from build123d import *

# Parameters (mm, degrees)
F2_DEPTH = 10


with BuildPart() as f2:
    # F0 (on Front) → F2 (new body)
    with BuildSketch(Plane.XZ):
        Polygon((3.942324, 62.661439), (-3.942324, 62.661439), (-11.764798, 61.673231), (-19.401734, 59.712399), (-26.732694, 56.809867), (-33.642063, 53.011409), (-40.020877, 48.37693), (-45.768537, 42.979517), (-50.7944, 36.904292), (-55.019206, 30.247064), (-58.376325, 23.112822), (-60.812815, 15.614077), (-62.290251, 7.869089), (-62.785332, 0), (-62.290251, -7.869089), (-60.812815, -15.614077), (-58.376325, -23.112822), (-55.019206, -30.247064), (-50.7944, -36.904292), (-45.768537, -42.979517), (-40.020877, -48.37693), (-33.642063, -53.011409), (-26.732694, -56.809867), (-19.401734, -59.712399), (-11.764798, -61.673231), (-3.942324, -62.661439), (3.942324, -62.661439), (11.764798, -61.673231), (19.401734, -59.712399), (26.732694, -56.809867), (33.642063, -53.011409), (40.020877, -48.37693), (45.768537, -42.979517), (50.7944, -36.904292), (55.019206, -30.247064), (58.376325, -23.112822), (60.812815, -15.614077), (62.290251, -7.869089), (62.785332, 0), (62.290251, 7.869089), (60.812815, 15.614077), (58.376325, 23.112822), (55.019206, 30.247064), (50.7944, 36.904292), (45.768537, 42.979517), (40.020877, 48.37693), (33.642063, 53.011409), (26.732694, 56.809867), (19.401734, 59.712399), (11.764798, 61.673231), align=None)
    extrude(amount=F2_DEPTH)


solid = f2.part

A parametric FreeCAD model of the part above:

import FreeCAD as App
import Part
import Sketcher
Q = App.Units.Quantity

doc = App.newDocument("Part")
body = doc.addObject("PartDesign::Body", "Body")

# Sketch on XZ plane
sketch1 = body.newObject("Sketcher::SketchObject", "Sketch")
sketch1.AttachmentSupport = (doc.getObject("XZ_Plane"), [""])
sketch1.MapMode = "FlatFace"
sketch1.addGeometry(Part.LineSegment(App.Vector(4, 63, 0), App.Vector(-4, 63, 0)), False)
sketch1.addGeometry(Part.LineSegment(App.Vector(-4, 63, 0), App.Vector(-12, 62, 0)), False)
sketch1.addGeometry(Part.LineSegment(App.Vector(-12, 62, 0), App.Vector(-19, 60, 0)), False)
sketch1.addGeometry(Part.LineSegment(App.Vector(-19, 60, 0), App.Vector(-27, 57, 0)), False)
sketch1.addGeometry(Part.LineSegment(App.Vector(-27, 57, 0), App.Vector(-34, 53, 0)), False)
sketch1.addGeometry(Part.LineSegment(App.Vector(-34, 53, 0), App.Vector(-40, 48, 0)), False)
sketch1.addGeometry(Part.LineSegment(App.Vector(-40, 48, 0), App.Vector(-46, 43, 0)), False)
sketch1.addGeometry(Part.LineSegment(App.Vector(-46, 43, 0), App.Vector(-51, 37, 0)), False)
sketch1.addGeometry(Part.LineSegment(App.Vector(-51, 37, 0), App.Vector(-55, 30, 0)), False)
sketch1.addGeometry(Part.LineSegment(App.Vector(-55, 30, 0), App.Vector(-58, 23, 0)), False)
sketch1.addGeometry(Part.LineSegment(App.Vector(-58, 23, 0), App.Vector(-61, 16, 0)), False)
sketch1.addGeometry(Part.LineSegment(App.Vector(-61, 16, 0), App.Vector(-62, 8, 0)), False)
sketch1.addGeometry(Part.LineSegment(App.Vector(-62, 8, 0), App.Vector(-63, 0, 0)), False)
sketch1.addGeometry(Part.LineSegment(App.Vector(-63, 0, 0), App.Vector(-62, -8, 0)), False)
sketch1.addGeometry(Part.LineSegment(App.Vector(-62, -8, 0), App.Vector(-61, -16, 0)), False)
sketch1.addGeometry(Part.LineSegment(App.Vector(-61, -16, 0), App.Vector(-58, -23, 0)), False)
sketch1.addGeometry(Part.LineSegment(App.Vector(-58, -23, 0), App.Vector(-55, -30, 0)), False)
sketch1.addGeometry(Part.LineSegment(App.Vector(-55, -30, 0), App.Vector(-51, -37, 0)), False)
sketch1.addGeometry(Part.LineSegment(App.Vector(-51, -37, 0), App.Vector(-46, -43, 0)), False)
sketch1.addGeometry(Part.LineSegment(App.Vector(-46, -43, 0), App.Vector(-40, -48, 0)), False)
sketch1.addGeometry(Part.LineSegment(App.Vector(-40, -48, 0), App.Vector(-34, -53, 0)), False)
sketch1.addGeometry(Part.LineSegment(App.Vector(-34, -53, 0), App.Vector(-27, -57, 0)), False)
sketch1.addGeometry(Part.LineSegment(App.Vector(-27, -57, 0), App.Vector(-19, -60, 0)), False)
sketch1.addGeometry(Part.LineSegment(App.Vector(-19, -60, 0), App.Vector(-12, -62, 0)), False)
sketch1.addGeometry(Part.LineSegment(App.Vector(-12, -62, 0), App.Vector(-4, -63, 0)), False)
sketch1.addGeometry(Part.LineSegment(App.Vector(-4, -63, 0), App.Vector(4, -63, 0)), False)
sketch1.addGeometry(Part.LineSegment(App.Vector(4, -63, 0), App.Vector(12, -62, 0)), False)
sketch1.addGeometry(Part.LineSegment(App.Vector(12, -62, 0), App.Vector(19, -60, 0)), False)
sketch1.addGeometry(Part.LineSegment(App.Vector(19, -60, 0), App.Vector(27, -57, 0)), False)
sketch1.addGeometry(Part.LineSegment(App.Vector(27, -57, 0), App.Vector(34, -53, 0)), False)
sketch1.addGeometry(Part.LineSegment(App.Vector(34, -53, 0), App.Vector(40, -48, 0)), False)
sketch1.addGeometry(Part.LineSegment(App.Vector(40, -48, 0), App.Vector(46, -43, 0)), False)
sketch1.addGeometry(Part.LineSegment(App.Vector(46, -43, 0), App.Vector(51, -37, 0)), False)
sketch1.addGeometry(Part.LineSegment(App.Vector(51, -37, 0), App.Vector(55, -30, 0)), False)
sketch1.addGeometry(Part.LineSegment(App.Vector(55, -30, 0), App.Vector(58, -23, 0)), False)
sketch1.addGeometry(Part.LineSegment(App.Vector(58, -23, 0), App.Vector(61, -16, 0)), False)
sketch1.addGeometry(Part.LineSegment(App.Vector(61, -16, 0), App.Vector(62, -8, 0)), False)
sketch1.addGeometry(Part.LineSegment(App.Vector(62, -8, 0), App.Vector(63, 0, 0)), False)
sketch1.addGeometry(Part.LineSegment(App.Vector(63, 0, 0), App.Vector(62, 8, 0)), False)
sketch1.addGeometry(Part.LineSegment(App.Vector(62, 8, 0), App.Vector(61, 16, 0)), False)
sketch1.addGeometry(Part.LineSegment(App.Vector(61, 16, 0), App.Vector(58, 23, 0)), False)
sketch1.addGeometry(Part.LineSegment(App.Vector(58, 23, 0), App.Vector(55, 30, 0)), False)
sketch1.addGeometry(Part.LineSegment(App.Vector(55, 30, 0), App.Vector(51, 37, 0)), False)
sketch1.addGeometry(Part.LineSegment(App.Vector(51, 37, 0), App.Vector(46, 43, 0)), False)
sketch1.addGeometry(Part.LineSegment(App.Vector(46, 43, 0), App.Vector(40, 48, 0)), False)
sketch1.addGeometry(Part.LineSegment(App.Vector(40, 48, 0), App.Vector(34, 53, 0)), False)
sketch1.addGeometry(Part.LineSegment(App.Vector(34, 53, 0), App.Vector(27, 57, 0)), False)
sketch1.addGeometry(Part.LineSegment(App.Vector(27, 57, 0), App.Vector(19, 60, 0)), False)
sketch1.addGeometry(Part.LineSegment(App.Vector(19, 60, 0), App.Vector(12, 62, 0)), False)
sketch1.addGeometry(Part.LineSegment(App.Vector(12, 62, 0), App.Vector(4, 63, 0)), False)
sketch1.addConstraint(Sketcher.Constraint("Coincident", 0, 2, 1, 1))
sketch1.addConstraint(Sketcher.Constraint("Coincident", 1, 2, 2, 1))
sketch1.addConstraint(Sketcher.Constraint("Coincident", 2, 2, 3, 1))
sketch1.addConstraint(Sketcher.Constraint("Coincident", 3, 2, 4, 1))
sketch1.addConstraint(Sketcher.Constraint("Coincident", 4, 2, 5, 1))
sketch1.addConstraint(Sketcher.Constraint("Coincident", 5, 2, 6, 1))
sketch1.addConstraint(Sketcher.Constraint("Coincident", 6, 2, 7, 1))
sketch1.addConstraint(Sketcher.Constraint("Coincident", 7, 2, 8, 1))
sketch1.addConstraint(Sketcher.Constraint("Coincident", 8, 2, 9, 1))
sketch1.addConstraint(Sketcher.Constraint("Coincident", 9, 2, 10, 1))
sketch1.addConstraint(Sketcher.Constraint("Coincident", 10, 2, 11, 1))
sketch1.addConstraint(Sketcher.Constraint("Coincident", 11, 2, 12, 1))
sketch1.addConstraint(Sketcher.Constraint("Coincident", 12, 2, 13, 1))
sketch1.addConstraint(Sketcher.Constraint("Coincident", 13, 2, 14, 1))
sketch1.addConstraint(Sketcher.Constraint("Coincident", 14, 2, 15, 1))
sketch1.addConstraint(Sketcher.Constraint("Coincident", 15, 2, 16, 1))
sketch1.addConstraint(Sketcher.Constraint("Coincident", 16, 2, 17, 1))
sketch1.addConstraint(Sketcher.Constraint("Coincident", 17, 2, 18, 1))
sketch1.addConstraint(Sketcher.Constraint("Coincident", 18, 2, 19, 1))
sketch1.addConstraint(Sketcher.Constraint("Coincident", 19, 2, 20, 1))
sketch1.addConstraint(Sketcher.Constraint("Coincident", 20, 2, 21, 1))
sketch1.addConstraint(Sketcher.Constraint("Coincident", 21, 2, 22, 1))
sketch1.addConstraint(Sketcher.Constraint("Coincident", 22, 2, 23, 1))
sketch1.addConstraint(Sketcher.Constraint("Coincident", 23, 2, 24, 1))
sketch1.addConstraint(Sketcher.Constraint("Coincident", 24, 2, 25, 1))
sketch1.addConstraint(Sketcher.Constraint("Coincident", 25, 2, 26, 1))
sketch1.addConstraint(Sketcher.Constraint("Coincident", 26, 2, 27, 1))
sketch1.addConstraint(Sketcher.Constraint("Coincident", 27, 2, 28, 1))
sketch1.addConstraint(Sketcher.Constraint("Coincident", 28, 2, 29, 1))
sketch1.addConstraint(Sketcher.Constraint("Coincident", 29, 2, 30, 1))
sketch1.addConstraint(Sketcher.Constraint("Coincident", 30, 2, 31, 1))
sketch1.addConstraint(Sketcher.Constraint("Coincident", 31, 2, 32, 1))
sketch1.addConstraint(Sketcher.Constraint("Coincident", 32, 2, 33, 1))
sketch1.addConstraint(Sketcher.Constraint("Coincident", 33, 2, 34, 1))
sketch1.addConstraint(Sketcher.Constraint("Coincident", 34, 2, 35, 1))
sketch1.addConstraint(Sketcher.Constraint("Coincident", 35, 2, 36, 1))
sketch1.addConstraint(Sketcher.Constraint("Coincident", 36, 2, 37, 1))
sketch1.addConstraint(Sketcher.Constraint("Coincident", 37, 2, 38, 1))
sketch1.addConstraint(Sketcher.Constraint("Coincident", 38, 2, 39, 1))
sketch1.addConstraint(Sketcher.Constraint("Coincident", 39, 2, 40, 1))
sketch1.addConstraint(Sketcher.Constraint("Coincident", 40, 2, 41, 1))
sketch1.addConstraint(Sketcher.Constraint("Coincident", 41, 2, 42, 1))
sketch1.addConstraint(Sketcher.Constraint("Coincident", 42, 2, 43, 1))
sketch1.addConstraint(Sketcher.Constraint("Coincident", 43, 2, 44, 1))
sketch1.addConstraint(Sketcher.Constraint("Coincident", 44, 2, 45, 1))
sketch1.addConstraint(Sketcher.Constraint("Coincident", 45, 2, 46, 1))
sketch1.addConstraint(Sketcher.Constraint("Coincident", 46, 2, 47, 1))
sketch1.addConstraint(Sketcher.Constraint("Coincident", 47, 2, 48, 1))
sketch1.addConstraint(Sketcher.Constraint("Coincident", 48, 2, 49, 1))
sketch1.addConstraint(Sketcher.Constraint("Coincident", 49, 2, 0, 1))
sketch1.addConstraint(Sketcher.Constraint("Horizontal", 0))
sketch1.addConstraint(Sketcher.Constraint("Horizontal", 25))
sketch1.addConstraint(Sketcher.Constraint("Symmetric", 0, 2, 25, 2, -1, 1))
sketch1.addConstraint(Sketcher.Constraint("Symmetric", 1, 2, 26, 2, -1, 1))
sketch1.addConstraint(Sketcher.Constraint("Symmetric", 2, 2, 27, 2, -1, 1))
sketch1.addConstraint(Sketcher.Constraint("Symmetric", 3, 2, 28, 2, -1, 1))
sketch1.addConstraint(Sketcher.Constraint("Symmetric", 4, 2, 29, 2, -1, 1))
sketch1.addConstraint(Sketcher.Constraint("Symmetric", 5, 2, 30, 2, -1, 1))
sketch1.addConstraint(Sketcher.Constraint("Symmetric", 6, 2, 31, 2, -1, 1))
sketch1.addConstraint(Sketcher.Constraint("Symmetric", 7, 2, 32, 2, -1, 1))
sketch1.addConstraint(Sketcher.Constraint("Symmetric", 8, 2, 33, 2, -1, 1))
sketch1.addConstraint(Sketcher.Constraint("Symmetric", 9, 2, 34, 2, -1, 1))
sketch1.addConstraint(Sketcher.Constraint("Symmetric", 10, 2, 35, 2, -1, 1))
sketch1.addConstraint(Sketcher.Constraint("Symmetric", 11, 2, 36, 2, -1, 1))
sketch1.addConstraint(Sketcher.Constraint("Symmetric", 12, 2, 37, 2, -1, 1))
sketch1.addConstraint(Sketcher.Constraint("Symmetric", 13, 2, 38, 2, -1, 1))
sketch1.addConstraint(Sketcher.Constraint("Symmetric", 14, 2, 39, 2, -1, 1))
sketch1.addConstraint(Sketcher.Constraint("Symmetric", 15, 2, 40, 2, -1, 1))
sketch1.addConstraint(Sketcher.Constraint("Symmetric", 16, 2, 41, 2, -1, 1))
sketch1.addConstraint(Sketcher.Constraint("Symmetric", 17, 2, 42, 2, -1, 1))
sketch1.addConstraint(Sketcher.Constraint("Symmetric", 18, 2, 43, 2, -1, 1))
sketch1.addConstraint(Sketcher.Constraint("Symmetric", 19, 2, 44, 2, -1, 1))
sketch1.addConstraint(Sketcher.Constraint("Symmetric", 20, 2, 45, 2, -1, 1))
sketch1.addConstraint(Sketcher.Constraint("Symmetric", 21, 2, 46, 2, -1, 1))
sketch1.addConstraint(Sketcher.Constraint("Symmetric", 22, 2, 47, 2, -1, 1))
sketch1.addConstraint(Sketcher.Constraint("Symmetric", 23, 2, 48, 2, -1, 1))
sketch1.addConstraint(Sketcher.Constraint("Symmetric", 23, 2, 26, 2, -2))
sketch1.addConstraint(Sketcher.Constraint("Symmetric", 22, 2, 27, 2, -2))
sketch1.addConstraint(Sketcher.Constraint("Symmetric", 21, 2, 28, 2, -2))
sketch1.addConstraint(Sketcher.Constraint("Symmetric", 20, 2, 29, 2, -2))
sketch1.addConstraint(Sketcher.Constraint("Symmetric", 19, 2, 30, 2, -2))
sketch1.addConstraint(Sketcher.Constraint("Symmetric", 18, 2, 31, 2, -2))
sketch1.addConstraint(Sketcher.Constraint("Symmetric", 17, 2, 32, 2, -2))
sketch1.addConstraint(Sketcher.Constraint("Symmetric", 16, 2, 33, 2, -2))
sketch1.addConstraint(Sketcher.Constraint("Symmetric", 15, 2, 34, 2, -2))
sketch1.addConstraint(Sketcher.Constraint("Symmetric", 14, 2, 35, 2, -2))
sketch1.addConstraint(Sketcher.Constraint("Symmetric", 13, 2, 36, 2, -2))
sketch1.addConstraint(Sketcher.Constraint("PointOnObject", 12, 2, -1))
sketch1.addConstraint(Sketcher.Constraint("Parallel", 24, 49))
sketch1.addConstraint(Sketcher.Constraint("Vertical", 0, 2, 24, 2))
sketch1.addConstraint(Sketcher.Constraint("Equal", 1, 2))
sketch1.addConstraint(Sketcher.Constraint("Equal", 2, 3))
sketch1.addConstraint(Sketcher.Constraint("Equal", 3, 4))
sketch1.addConstraint(Sketcher.Constraint("Equal", 4, 5))
sketch1.addConstraint(Sketcher.Constraint("Equal", 5, 6))
sketch1.addConstraint(Sketcher.Constraint("Equal", 6, 7))
sketch1.addConstraint(Sketcher.Constraint("Equal", 7, 8))
sketch1.addConstraint(Sketcher.Constraint("Equal", 8, 9))
sketch1.addConstraint(Sketcher.Constraint("Equal", 9, 10))
sketch1.addConstraint(Sketcher.Constraint("Equal", 10, 11))
sketch1.addConstraint(Sketcher.Constraint("Equal", 11, 12))
sketch1.addConstraint(Sketcher.Constraint("Angle", 5, Q("-144.000004 deg")))
sketch1.addConstraint(Sketcher.Constraint("Angle", 10, Q("-108 deg")))
sketch1.addConstraint(Sketcher.Constraint("Angle", 1, Q("-172.800002 deg")))
sketch1.addConstraint(Sketcher.Constraint("Angle", 2, Q("-165.599999 deg")))
sketch1.addConstraint(Sketcher.Constraint("Angle", 3, Q("-158.400003 deg")))
sketch1.addConstraint(Sketcher.Constraint("Angle", 4, Q("-151.199998 deg")))
sketch1.addConstraint(Sketcher.Constraint("Angle", 6, Q("-136.799995 deg")))
sketch1.addConstraint(Sketcher.Constraint("Angle", 7, Q("-129.599999 deg")))
sketch1.addConstraint(Sketcher.Constraint("Angle", 8, Q("-122.400004 deg")))
sketch1.addConstraint(Sketcher.Constraint("Angle", 9, Q("-115.199997 deg")))
sketch1.addConstraint(Sketcher.Constraint("Angle", 11, Q("-100.800004 deg")))
sketch1.addConstraint(Sketcher.Constraint("Angle", 12, Q("-93.599999 deg")))
sketch1.addConstraint(Sketcher.Constraint("DistanceX", 0, 2, 0, 1, Q("7.884648 mm")))
sketch1.addConstraint(Sketcher.Constraint("DistanceX", 1, 2, -1, 1, Q("11.764798 mm")))
pad1 = body.newObject("PartDesign::Pad", "Pad")
pad1.Profile = sketch1
pad1.Length = 10

doc.recompute()
